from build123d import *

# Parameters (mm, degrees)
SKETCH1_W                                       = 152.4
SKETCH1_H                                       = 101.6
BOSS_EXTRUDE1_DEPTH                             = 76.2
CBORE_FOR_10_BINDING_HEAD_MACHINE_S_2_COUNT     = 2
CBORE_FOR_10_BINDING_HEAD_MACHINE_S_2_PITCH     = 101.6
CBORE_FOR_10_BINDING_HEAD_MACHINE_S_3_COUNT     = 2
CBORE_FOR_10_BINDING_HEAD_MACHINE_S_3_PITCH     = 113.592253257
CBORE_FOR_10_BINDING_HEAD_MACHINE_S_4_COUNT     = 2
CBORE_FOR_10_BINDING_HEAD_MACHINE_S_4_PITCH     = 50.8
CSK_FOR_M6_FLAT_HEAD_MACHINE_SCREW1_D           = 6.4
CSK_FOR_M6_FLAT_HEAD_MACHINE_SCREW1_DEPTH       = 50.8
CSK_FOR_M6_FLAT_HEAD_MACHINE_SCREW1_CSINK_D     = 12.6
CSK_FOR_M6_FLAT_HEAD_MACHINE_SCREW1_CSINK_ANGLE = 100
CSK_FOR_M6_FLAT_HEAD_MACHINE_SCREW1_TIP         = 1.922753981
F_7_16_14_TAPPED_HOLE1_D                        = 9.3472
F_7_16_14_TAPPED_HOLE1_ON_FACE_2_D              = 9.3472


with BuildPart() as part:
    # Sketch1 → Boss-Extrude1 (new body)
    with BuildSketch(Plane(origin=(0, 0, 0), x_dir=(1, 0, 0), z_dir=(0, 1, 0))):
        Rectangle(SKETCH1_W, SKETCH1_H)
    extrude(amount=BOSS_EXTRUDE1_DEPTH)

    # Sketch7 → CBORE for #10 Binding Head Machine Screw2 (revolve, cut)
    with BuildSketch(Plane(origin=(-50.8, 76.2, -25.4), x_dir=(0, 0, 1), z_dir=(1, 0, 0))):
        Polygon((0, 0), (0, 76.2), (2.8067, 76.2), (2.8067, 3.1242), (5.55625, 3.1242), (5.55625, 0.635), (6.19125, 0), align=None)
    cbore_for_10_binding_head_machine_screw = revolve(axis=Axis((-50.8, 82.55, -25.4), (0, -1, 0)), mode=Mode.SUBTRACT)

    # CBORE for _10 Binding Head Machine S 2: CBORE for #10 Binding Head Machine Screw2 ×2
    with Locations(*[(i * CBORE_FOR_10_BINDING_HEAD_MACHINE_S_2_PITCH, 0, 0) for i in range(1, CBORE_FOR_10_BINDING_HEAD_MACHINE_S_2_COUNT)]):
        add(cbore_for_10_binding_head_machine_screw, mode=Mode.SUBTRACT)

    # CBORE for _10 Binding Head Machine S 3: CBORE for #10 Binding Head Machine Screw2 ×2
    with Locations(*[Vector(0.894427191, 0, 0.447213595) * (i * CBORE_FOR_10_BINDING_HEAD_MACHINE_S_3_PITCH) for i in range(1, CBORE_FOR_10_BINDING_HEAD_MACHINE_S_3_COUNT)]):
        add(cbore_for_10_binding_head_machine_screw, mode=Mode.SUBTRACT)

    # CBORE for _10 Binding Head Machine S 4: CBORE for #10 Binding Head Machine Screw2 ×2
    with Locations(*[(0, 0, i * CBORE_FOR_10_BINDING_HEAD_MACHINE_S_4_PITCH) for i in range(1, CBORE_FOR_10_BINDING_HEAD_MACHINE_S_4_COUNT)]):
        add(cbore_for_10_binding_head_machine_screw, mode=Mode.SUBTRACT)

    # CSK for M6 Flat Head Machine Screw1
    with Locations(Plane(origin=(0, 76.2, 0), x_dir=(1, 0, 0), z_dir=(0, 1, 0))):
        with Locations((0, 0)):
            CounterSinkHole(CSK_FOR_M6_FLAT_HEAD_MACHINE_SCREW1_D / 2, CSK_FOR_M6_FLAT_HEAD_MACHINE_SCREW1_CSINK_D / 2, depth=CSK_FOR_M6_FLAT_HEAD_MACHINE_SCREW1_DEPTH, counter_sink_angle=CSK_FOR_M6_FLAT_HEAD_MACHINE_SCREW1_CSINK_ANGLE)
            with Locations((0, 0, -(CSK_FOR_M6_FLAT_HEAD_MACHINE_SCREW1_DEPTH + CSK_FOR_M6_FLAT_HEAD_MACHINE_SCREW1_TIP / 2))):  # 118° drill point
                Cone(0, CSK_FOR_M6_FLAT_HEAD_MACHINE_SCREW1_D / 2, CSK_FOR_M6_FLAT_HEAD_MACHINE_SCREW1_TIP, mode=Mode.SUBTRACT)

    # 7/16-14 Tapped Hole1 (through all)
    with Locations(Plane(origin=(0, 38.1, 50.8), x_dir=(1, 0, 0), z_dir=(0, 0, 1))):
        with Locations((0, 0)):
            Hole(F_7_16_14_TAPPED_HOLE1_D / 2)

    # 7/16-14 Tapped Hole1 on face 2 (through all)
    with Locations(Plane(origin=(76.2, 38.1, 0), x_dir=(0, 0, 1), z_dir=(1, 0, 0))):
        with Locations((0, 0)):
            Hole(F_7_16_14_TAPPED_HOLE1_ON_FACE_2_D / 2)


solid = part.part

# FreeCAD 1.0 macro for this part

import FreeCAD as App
import Part
import Sketcher

V = App.Vector
Q = App.Units.Quantity

doc = App.newDocument("Part")
params = doc.addObject("Spreadsheet::Sheet", "Params")
for row, (alias, value) in enumerate([
    ("sketch1_width", "6 in"),
    ("sketch1_height", "4 in"),
    ("pad1_length", "3 in"),
    ("sketch2_width", "3 in"),
    ("sketch2_width2", "0.098 in"),
    ("sketch2_width3", "2.877 in"),
    ("groove_angle", "360 deg"),
    ("linearpattern_pitch", "4 in"),
    ("linearpattern2_pitch", "113.592253 mm"),
    ("linearpattern3_pitch", "2 in"),
    ("hole_diameter", "6.4 mm"),
    ("hole_depth", "2 in"),
    ("hole_csink_diameter", "12.6 mm"),
    ("sketch4_diameter", "0.368 in"),
    ("hole2_diameter", "0.368 in"),
    ("sketch5_diameter", "0.368 in"),
    ("hole3_diameter", "0.368 in"),
], start=1):
    params.set(f"A{row}", alias)
    params.set(f"B{row}", "=" + value)
    params.setAlias(f"B{row}", alias)

body = doc.addObject("PartDesign::Body", "Body")

# Sketch on XZ plane
sketch1 = body.newObject("Sketcher::SketchObject", "Sketch")
sketch1.AttachmentSupport = (doc.getObject("XZ_Plane"), [""])
sketch1.MapMode = "FlatFace"
sketch1.addGeometry([
    Part.LineSegment(V(-76.2, -50.8, 0), V(-76.2, 50.8, 0)),
    Part.LineSegment(V(-76.2, 50.8, 0), V(76.2, 50.8, 0)),
    Part.LineSegment(V(76.2, 50.8, 0), V(76.2, -50.8, 0)),
    Part.LineSegment(V(76.2, -50.8, 0), V(-76.2, -50.8, 0)),
], False)
sketch1.addConstraint([
    Sketcher.Constraint("Coincident", 0, 2, 1, 1),
    Sketcher.Constraint("Coincident", 1, 2, 2, 1),
    Sketcher.Constraint("Coincident", 2, 2, 3, 1),
    Sketcher.Constraint("Coincident", 3, 2, 0, 1),
    Sketcher.Constraint("Vertical", 0),
    Sketcher.Constraint("Horizontal", 1),
    Sketcher.Constraint("Vertical", 2),
    Sketcher.Constraint("Horizontal", 3),
    Sketcher.Constraint("Symmetric", 0, 2, 2, 2, -1, 1),
    Sketcher.Constraint("DistanceX", 1, 1, 1, 2, Q("6 in")),
    Sketcher.Constraint("DistanceY", 0, 1, 0, 2, Q("4 in")),
])
sketch1.setExpression("Constraints[9]", "Params.sketch1_width")
sketch1.setExpression("Constraints[10]", "Params.sketch1_height")
pad1 = body.newObject("PartDesign::Pad", "Pad")
pad1.Profile = sketch1
pad1.setExpression("Length", "Params.pad1_length")
pad1.Reversed = True

# Sketch on YZ plane
sketch2 = body.newObject("Sketcher::SketchObject", "Sketch001")
sketch2.AttachmentSupport = (doc.getObject("YZ_Plane"), [""])
sketch2.MapMode = "FlatFace"
sketch2.AttachmentOffset = App.Placement(V(0, 0, -2 * 25.4), App.Rotation())
sketch2.addGeometry([
    Part.LineSegment(V(0, -25.4, 0), V(76.2, -25.4, 0)),  # 0
    Part.LineSegment(V(76.2, -25.4, 0), V(76.2, -19.20875, 0)),  # 1
    Part.LineSegment(V(76.2, -19.20875, 0), V(75.565, -19.84375, 0)),  # 2
    Part.LineSegment(V(75.565, -19.84375, 0), V(73.0758, -19.84375, 0)),  # 3
    Part.LineSegment(V(73.0758, -19.84375, 0), V(73.0758, -22.5933, 0)),  # 4
    Part.LineSegment(V(73.0758, -22.5933, 0), V(0, -22.5933, 0)),  # 5
    Part.LineSegment(V(0, -22.5933, 0), V(0, -25.4, 0)),  # 6
], False)
sketch2.addGeometry(Part.LineSegment(V(76.2, -25.4, 0), V(0, -25.4, 0)), True)  # axis
sketch2.addConstraint([
    Sketcher.Constraint("Coincident", 0, 2, 1, 1),
    Sketcher.Constraint("Coincident", 1, 2, 2, 1),
    Sketcher.Constraint("Coincident", 2, 2, 3, 1),
    Sketcher.Constraint("Coincident", 3, 2, 4, 1),
    Sketcher.Constraint("Coincident", 4, 2, 5, 1),
    Sketcher.Constraint("Coincident", 5, 2, 6, 1),
    Sketcher.Constraint("Coincident", 6, 2, 0, 1),
    Sketcher.Constraint("Horizontal", 0),
    Sketcher.Constraint("Vertical", 1),
    Sketcher.Constraint("Horizontal", 3),
    Sketcher.Constraint("Vertical", 4),
    Sketcher.Constraint("Horizontal", 5),
    Sketcher.Constraint("Vertical", 6),
    Sketcher.Constraint("Horizontal", 7),
    Sketcher.Constraint("Coincident", 7, 1, 0, 2),
    Sketcher.Constraint("PointOnObject", 5, 2, -2),
    Sketcher.Constraint("PointOnObject", 7, 2, -2),
    Sketcher.Constraint("DistanceX", 0, 1, 0, 2, Q("3 in")),
    Sketcher.Constraint("DistanceY", 0, 2, -1, 1, Q("1 in")),
    Sketcher.Constraint("Angle", 2, Q("-135 deg")),
    Sketcher.Constraint("DistanceX", 3, 2, 3, 1, Q("0.098 in")),
    Sketcher.Constraint("DistanceX", 5, 2, 5, 1, Q("2.877 in")),
    Sketcher.Constraint("DistanceY", 6, 2, 6, 1, Q("0.1105 in")),
    Sketcher.Constraint("DistanceY", 2, 2, -1, 1, Q("0.78125 in")),
])
sketch2.setExpression("Constraints[17]", "Params.sketch2_width")
sketch2.setExpression("Constraints[20]", "Params.sketch2_width2")
sketch2.setExpression("Constraints[21]", "Params.sketch2_width3")
groove = body.newObject("PartDesign::Groove", "Groove")
groove.Profile = sketch2
groove.ReferenceAxis = (sketch2, ["Axis0"])
groove.setExpression("Angle", "Params.groove_angle")
doc.recompute()

linearpattern = body.newObject("PartDesign::LinearPattern", "LinearPattern")
linearpattern.Originals = [groove]
linearpattern.Direction = (doc.getObject("X_Axis"), [""])
linearpattern.Mode = "offset"
linearpattern.setExpression("Offset", "Params.linearpattern_pitch")
linearpattern.Occurrences = 2
body.Tip = linearpattern
doc.recompute()

datumline = body.newObject("PartDesign::Line", "DatumLine")
datumline.Placement = App.Placement(V(0, 0, 0), App.Rotation(V(0, 0, 1), V(0.894427191, 0, 0.447213595)))
linearpattern2 = body.newObject("PartDesign::LinearPattern", "LinearPattern001")
linearpattern2.Originals = [groove]
linearpattern2.Direction = (datumline, [""])
linearpattern2.Mode = "offset"
linearpattern2.setExpression("Offset", "Params.linearpattern2_pitch")
linearpattern2.Occurrences = 2
body.Tip = linearpattern2
doc.recompute()

linearpattern3 = body.newObject("PartDesign::LinearPattern", "LinearPattern002")
linearpattern3.Originals = [groove]
linearpattern3.Direction = (doc.getObject("Z_Axis"), [""])
linearpattern3.Mode = "offset"
linearpattern3.setExpression("Offset", "Params.linearpattern3_pitch")
linearpattern3.Occurrences = 2
body.Tip = linearpattern3

# Sketch on XZ plane
sketch3 = body.newObject("Sketcher::SketchObject", "Sketch002")
sketch3.AttachmentSupport = (doc.getObject("XZ_Plane"), [""])
sketch3.MapMode = "FlatFace"
sketch3.AttachmentOffset = App.Placement(V(0, 0, -3 * 25.4), App.Rotation())
sketch3.addGeometry(Part.Circle(V(0, 0, 0), V(0, 0, 1), 3.2), False)
sketch3.addConstraint([
    Sketcher.Constraint("Coincident", 0, 3, -1, 1),
    Sketcher.Constraint("Diameter", 0, Q("6.4 mm")),
])
doc.recompute()
hole = body.newObject("PartDesign::Hole", "Hole")
hole.Profile = sketch3
hole.ThreadType = "None"
hole.setExpression("Diameter", "Params.hole_diameter")
hole.DepthType = "Dimension"
hole.setExpression("Depth", "Params.hole_depth")
hole.DrillPoint = "Angled"
hole.DrillPointAngle = 118
hole.HoleCutType = "Countersink"
hole.setExpression("HoleCutDiameter", "Params.hole_csink_diameter")
hole.HoleCutCountersinkAngle = 100
hole.Reversed = True

# Sketch on XY plane
sketch4 = body.newObject("Sketcher::SketchObject", "Sketch003")
sketch4.AttachmentSupport = (doc.getObject("XY_Plane"), [""])
sketch4.MapMode = "FlatFace"
sketch4.AttachmentOffset = App.Placement(V(0, 0, 2 * 25.4), App.Rotation())
sketch4.addGeometry(Part.Circle(V(0, 38.1, 0), V(0, 0, 1), 4.6736), False)
sketch4.addConstraint([
    Sketcher.Constraint("PointOnObject", 0, 3, -2),
    Sketcher.Constraint("Diameter", 0, Q("0.368 in")),
    Sketcher.Constraint("DistanceY", -1, 1, 0, 3, Q("1.5 in")),
])
sketch4.setExpression("Constraints[1]", "Params.sketch4_diameter")
doc.recompute()
hole2 = body.newObject("PartDesign::Hole", "Hole001")
hole2.Profile = sketch4
hole2.ThreadType = "None"
hole2.setExpression("Diameter", "Params.hole2_diameter")
hole2.DepthType = "ThroughAll"

# Sketch on YZ plane
sketch5 = body.newObject("Sketcher::SketchObject", "Sketch004")
sketch5.AttachmentSupport = (doc.getObject("YZ_Plane"), [""])
sketch5.MapMode = "FlatFace"
sketch5.AttachmentOffset = App.Placement(V(0, 0, 3 * 25.4), App.Rotation())
sketch5.addGeometry(Part.Circle(V(38.1, 0, 0), V(0, 0, 1), 4.6736), False)
sketch5.addConstraint([
    Sketcher.Constraint("PointOnObject", 0, 3, -1),
    Sketcher.Constraint("Diameter", 0, Q("0.368 in")),
    Sketcher.Constraint("DistanceX", -1, 1, 0, 3, Q("1.5 in")),
])
sketch5.setExpression("Constraints[1]", "Params.sketch5_diameter")
doc.recompute()
hole3 = body.newObject("PartDesign::Hole", "Hole002")
hole3.Profile = sketch5
hole3.ThreadType = "None"
hole3.setExpression("Diameter", "Params.hole3_diameter")
hole3.DepthType = "ThroughAll"

doc.recompute()
